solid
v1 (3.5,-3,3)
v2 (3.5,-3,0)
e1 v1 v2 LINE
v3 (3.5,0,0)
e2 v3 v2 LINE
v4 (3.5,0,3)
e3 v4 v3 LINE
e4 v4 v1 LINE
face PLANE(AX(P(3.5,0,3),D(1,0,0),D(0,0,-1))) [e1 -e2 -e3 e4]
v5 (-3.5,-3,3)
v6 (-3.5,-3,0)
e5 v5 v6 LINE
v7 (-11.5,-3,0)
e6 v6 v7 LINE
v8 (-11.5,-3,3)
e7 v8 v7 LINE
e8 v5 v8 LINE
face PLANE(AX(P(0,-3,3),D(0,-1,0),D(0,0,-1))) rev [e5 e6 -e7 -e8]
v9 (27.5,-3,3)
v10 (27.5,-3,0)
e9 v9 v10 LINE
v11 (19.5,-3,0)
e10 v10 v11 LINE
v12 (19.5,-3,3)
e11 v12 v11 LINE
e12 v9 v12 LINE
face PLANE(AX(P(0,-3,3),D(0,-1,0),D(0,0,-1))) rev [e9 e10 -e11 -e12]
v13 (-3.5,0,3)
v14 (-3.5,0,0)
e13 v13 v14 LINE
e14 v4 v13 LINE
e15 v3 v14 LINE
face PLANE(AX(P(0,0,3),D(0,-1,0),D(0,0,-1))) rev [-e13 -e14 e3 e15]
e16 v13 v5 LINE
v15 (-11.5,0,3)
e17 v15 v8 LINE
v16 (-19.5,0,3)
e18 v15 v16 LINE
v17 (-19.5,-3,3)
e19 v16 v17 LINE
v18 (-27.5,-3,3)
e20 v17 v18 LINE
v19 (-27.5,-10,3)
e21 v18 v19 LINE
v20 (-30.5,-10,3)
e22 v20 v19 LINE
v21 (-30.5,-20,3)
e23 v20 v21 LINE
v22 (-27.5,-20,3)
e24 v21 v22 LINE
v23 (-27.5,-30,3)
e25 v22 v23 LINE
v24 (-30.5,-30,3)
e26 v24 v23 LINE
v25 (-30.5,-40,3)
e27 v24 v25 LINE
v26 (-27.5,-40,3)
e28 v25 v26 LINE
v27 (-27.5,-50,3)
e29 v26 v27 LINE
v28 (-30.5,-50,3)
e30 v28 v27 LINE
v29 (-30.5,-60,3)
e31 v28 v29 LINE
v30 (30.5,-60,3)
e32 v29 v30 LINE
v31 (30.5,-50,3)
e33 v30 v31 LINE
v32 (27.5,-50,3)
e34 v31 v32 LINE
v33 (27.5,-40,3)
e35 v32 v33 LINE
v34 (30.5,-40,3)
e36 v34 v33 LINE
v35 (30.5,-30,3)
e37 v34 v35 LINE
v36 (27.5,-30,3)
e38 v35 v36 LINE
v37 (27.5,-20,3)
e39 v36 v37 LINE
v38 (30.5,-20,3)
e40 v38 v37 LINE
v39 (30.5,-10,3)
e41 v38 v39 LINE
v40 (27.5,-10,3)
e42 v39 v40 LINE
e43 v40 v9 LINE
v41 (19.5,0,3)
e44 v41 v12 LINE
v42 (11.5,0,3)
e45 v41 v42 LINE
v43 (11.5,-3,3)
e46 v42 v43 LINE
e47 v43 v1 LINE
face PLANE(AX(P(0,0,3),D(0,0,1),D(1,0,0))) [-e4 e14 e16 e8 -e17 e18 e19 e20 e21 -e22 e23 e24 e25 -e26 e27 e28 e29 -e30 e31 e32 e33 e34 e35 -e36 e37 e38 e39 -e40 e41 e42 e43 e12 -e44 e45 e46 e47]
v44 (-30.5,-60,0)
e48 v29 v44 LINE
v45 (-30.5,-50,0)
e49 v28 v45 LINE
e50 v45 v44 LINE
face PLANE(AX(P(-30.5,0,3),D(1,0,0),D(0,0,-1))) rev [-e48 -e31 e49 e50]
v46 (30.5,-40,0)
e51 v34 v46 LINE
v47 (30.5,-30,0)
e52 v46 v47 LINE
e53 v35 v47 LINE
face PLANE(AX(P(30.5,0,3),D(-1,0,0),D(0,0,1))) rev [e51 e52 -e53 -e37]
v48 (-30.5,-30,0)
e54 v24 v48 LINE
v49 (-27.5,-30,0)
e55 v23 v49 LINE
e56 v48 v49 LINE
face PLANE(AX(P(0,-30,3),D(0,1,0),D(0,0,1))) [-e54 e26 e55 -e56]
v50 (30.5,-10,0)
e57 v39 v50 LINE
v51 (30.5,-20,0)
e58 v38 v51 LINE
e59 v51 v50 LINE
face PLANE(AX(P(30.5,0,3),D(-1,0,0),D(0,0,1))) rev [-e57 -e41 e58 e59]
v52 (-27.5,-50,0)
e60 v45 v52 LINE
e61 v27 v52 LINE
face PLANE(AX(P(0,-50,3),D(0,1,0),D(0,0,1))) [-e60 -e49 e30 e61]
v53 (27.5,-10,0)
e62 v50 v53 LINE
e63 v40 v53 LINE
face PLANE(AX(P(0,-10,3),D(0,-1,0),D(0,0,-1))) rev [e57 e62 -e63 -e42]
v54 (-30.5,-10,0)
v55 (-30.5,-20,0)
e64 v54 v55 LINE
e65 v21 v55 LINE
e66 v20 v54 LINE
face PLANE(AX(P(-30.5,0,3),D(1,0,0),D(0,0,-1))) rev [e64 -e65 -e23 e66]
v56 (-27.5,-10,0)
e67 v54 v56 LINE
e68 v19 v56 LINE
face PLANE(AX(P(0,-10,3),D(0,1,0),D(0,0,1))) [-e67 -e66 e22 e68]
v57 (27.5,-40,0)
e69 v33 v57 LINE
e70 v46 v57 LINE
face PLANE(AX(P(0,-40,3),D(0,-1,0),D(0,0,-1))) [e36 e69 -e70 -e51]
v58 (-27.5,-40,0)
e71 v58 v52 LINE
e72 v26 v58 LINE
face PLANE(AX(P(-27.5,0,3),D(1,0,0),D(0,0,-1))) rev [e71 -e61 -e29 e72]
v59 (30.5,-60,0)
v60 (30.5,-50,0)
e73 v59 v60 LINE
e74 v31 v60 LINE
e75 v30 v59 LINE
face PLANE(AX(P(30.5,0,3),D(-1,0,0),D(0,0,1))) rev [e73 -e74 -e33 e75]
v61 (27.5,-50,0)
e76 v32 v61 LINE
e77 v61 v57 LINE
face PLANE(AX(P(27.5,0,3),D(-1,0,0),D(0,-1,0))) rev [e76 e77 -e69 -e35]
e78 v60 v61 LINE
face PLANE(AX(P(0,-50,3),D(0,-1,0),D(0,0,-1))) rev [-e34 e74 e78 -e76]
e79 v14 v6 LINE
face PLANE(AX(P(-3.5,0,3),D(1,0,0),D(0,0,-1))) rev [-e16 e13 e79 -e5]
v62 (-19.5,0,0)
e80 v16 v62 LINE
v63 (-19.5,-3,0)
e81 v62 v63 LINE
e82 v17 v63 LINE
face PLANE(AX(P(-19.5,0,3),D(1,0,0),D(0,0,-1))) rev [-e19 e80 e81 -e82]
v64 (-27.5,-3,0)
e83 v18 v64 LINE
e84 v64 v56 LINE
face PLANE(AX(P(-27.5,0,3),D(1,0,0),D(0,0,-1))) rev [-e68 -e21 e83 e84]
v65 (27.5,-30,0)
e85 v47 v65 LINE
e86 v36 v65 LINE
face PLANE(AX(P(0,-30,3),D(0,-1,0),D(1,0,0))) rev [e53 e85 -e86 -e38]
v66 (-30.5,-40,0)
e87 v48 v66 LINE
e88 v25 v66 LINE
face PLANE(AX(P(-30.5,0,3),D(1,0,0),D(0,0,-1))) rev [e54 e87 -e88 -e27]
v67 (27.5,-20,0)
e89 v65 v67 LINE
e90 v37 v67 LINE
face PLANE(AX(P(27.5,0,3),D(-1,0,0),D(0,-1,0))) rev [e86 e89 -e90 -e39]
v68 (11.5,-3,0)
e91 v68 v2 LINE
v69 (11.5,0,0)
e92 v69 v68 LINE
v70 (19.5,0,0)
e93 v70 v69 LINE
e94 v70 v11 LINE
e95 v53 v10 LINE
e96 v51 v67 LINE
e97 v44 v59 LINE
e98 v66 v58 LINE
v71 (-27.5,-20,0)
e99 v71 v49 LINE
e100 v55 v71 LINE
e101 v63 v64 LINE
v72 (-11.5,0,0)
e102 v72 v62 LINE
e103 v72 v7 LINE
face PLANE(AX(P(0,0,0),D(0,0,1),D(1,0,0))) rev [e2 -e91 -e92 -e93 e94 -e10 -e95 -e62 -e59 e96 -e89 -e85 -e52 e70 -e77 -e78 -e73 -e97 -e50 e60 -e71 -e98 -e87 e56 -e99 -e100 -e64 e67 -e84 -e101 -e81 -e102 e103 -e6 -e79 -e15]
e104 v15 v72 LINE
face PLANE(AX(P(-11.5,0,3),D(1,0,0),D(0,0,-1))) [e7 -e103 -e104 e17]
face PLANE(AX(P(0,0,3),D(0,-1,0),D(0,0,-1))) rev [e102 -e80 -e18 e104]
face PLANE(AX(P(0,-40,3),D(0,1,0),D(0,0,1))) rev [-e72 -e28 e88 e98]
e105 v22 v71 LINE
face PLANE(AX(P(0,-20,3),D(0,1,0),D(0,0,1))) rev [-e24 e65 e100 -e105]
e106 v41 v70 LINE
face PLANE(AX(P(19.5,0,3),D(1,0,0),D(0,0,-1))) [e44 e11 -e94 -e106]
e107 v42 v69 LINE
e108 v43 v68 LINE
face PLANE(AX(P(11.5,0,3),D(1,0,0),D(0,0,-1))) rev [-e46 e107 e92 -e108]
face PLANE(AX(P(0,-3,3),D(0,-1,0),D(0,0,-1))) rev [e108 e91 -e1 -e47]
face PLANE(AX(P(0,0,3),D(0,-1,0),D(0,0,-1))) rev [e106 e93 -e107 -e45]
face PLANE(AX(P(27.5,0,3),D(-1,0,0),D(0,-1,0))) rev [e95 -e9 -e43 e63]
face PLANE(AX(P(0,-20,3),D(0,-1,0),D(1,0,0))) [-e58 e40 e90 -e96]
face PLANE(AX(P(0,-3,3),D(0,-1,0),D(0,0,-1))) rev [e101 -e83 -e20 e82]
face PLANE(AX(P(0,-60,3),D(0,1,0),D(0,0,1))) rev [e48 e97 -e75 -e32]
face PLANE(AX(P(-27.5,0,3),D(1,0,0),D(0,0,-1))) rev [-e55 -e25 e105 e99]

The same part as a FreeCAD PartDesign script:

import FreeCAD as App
import Part
import Sketcher

V = App.Vector


def add_polygon(sketch, points):
    """Adds a closed chain of lines whose ends are joined by coincident constraints."""
    first, n = sketch.GeometryCount, len(points)
    for a, b in zip(points, points[1:] + points[:1]):
        sketch.addGeometry(Part.LineSegment(App.Vector(*a, 0), App.Vector(*b, 0)), False)
    for i in range(n):
        sketch.addConstraint(Sketcher.Constraint("Coincident", first + i, 2, first + (i + 1) % n, 1))

doc = App.newDocument("Part")
body = doc.addObject("PartDesign::Body", "Body")

# Sketch on XY plane
sketch1 = body.newObject("Sketcher::SketchObject", "Sketch")
sketch1.AttachmentSupport = (doc.getObject("XY_Plane"), [""])
sketch1.MapMode = "FlatFace"
add_polygon(sketch1, [(-30.5, -10), (-30.5, -20), (-27.5, -20), (-27.5, -30), (-30.5, -30), (-30.5, -40), (-27.5, -40), (-27.5, -50), (-30.5, -50), (-30.5, -60), (30.5, -60), (30.5, -50), (27.5, -50), (27.5, -40), (30.5, -40), (30.5, -30), (27.5, -30), (27.5, -20), (30.5, -20), (30.5, -10), (27.5, -10), (27.5, -3), (19.5, -3), (19.5, 0), (11.5, 0), (11.5, -3), (3.5, -3), (3.5, 0), (-3.5, 0), (-3.5, -3), (-11.5, -3), (-11.5, 0), (-19.5, 0), (-19.5, -3), (-27.5, -3), (-27.5, -10)])  # lines 0-35
sketch1.addConstraint(Sketcher.Constraint("Vertical", 0))
sketch1.addConstraint(Sketcher.Constraint("Horizontal", 1))
sketch1.addConstraint(Sketcher.Constraint("Vertical", 2))
sketch1.addConstraint(Sketcher.Constraint("Horizontal", 3))
sketch1.addConstraint(Sketcher.Constraint("Vertical", 4))
sketch1.addConstraint(Sketcher.Constraint("Horizontal", 5))
sketch1.addConstraint(Sketcher.Constraint("Vertical", 6))
sketch1.addConstraint(Sketcher.Constraint("Horizontal", 7))
sketch1.addConstraint(Sketcher.Constraint("Vertical", 8))
sketch1.addConstraint(Sketcher.Constraint("Horizontal", 9))
sketch1.addConstraint(Sketcher.Constraint("Vertical", 10))
sketch1.addConstraint(Sketcher.Constraint("Horizontal", 11))
sketch1.addConstraint(Sketcher.Constraint("Vertical", 12))
sketch1.addConstraint(Sketcher.Constraint("Horizontal", 13))
sketch1.addConstraint(Sketcher.Constraint("Vertical", 14))
sketch1.addConstraint(Sketcher.Constraint("Horizontal", 15))
sketch1.addConstraint(Sketcher.Constraint("Vertical", 16))
sketch1.addConstraint(Sketcher.Constraint("Horizontal", 17))
sketch1.addConstraint(Sketcher.Constraint("Vertical", 18))
sketch1.addConstraint(Sketcher.Constraint("Horizontal", 19))
sketch1.addConstraint(Sketcher.Constraint("Vertical", 20))
sketch1.addConstraint(Sketcher.Constraint("Horizontal", 21))
sketch1.addConstraint(Sketcher.Constraint("Vertical", 22))
sketch1.addConstraint(Sketcher.Constraint("Horizontal", 23))
sketch1.addConstraint(Sketcher.Constraint("Vertical", 24))
sketch1.addConstraint(Sketcher.Constraint("Horizontal", 25))
sketch1.addConstraint(Sketcher.Constraint("Vertical", 26))
sketch1.addConstraint(Sketcher.Constraint("Horizontal", 27))
sketch1.addConstraint(Sketcher.Constraint("Vertical", 28))
sketch1.addConstraint(Sketcher.Constraint("Horizontal", 29))
sketch1.addConstraint(Sketcher.Constraint("Vertical", 30))
sketch1.addConstraint(Sketcher.Constraint("Horizontal", 31))
sketch1.addConstraint(Sketcher.Constraint("Vertical", 32))
sketch1.addConstraint(Sketcher.Constraint("Horizontal", 33))
sketch1.addConstraint(Sketcher.Constraint("Vertical", 34))
sketch1.addConstraint(Sketcher.Constraint("Horizontal", 35))
sketch1.addConstraint(Sketcher.Constraint("Symmetric", 26, 2, 27, 2, -1, 1))
sketch1.addConstraint(Sketcher.Constraint("Symmetric", 23, 2, 30, 2, -1, 1))
sketch1.addConstraint(Sketcher.Constraint("Symmetric", 7, 2, 10, 2, -2))
sketch1.addConstraint(Sketcher.Constraint("Symmetric", 5, 2, 12, 2, -2))
sketch1.addConstraint(Sketcher.Constraint("Symmetric", 3, 2, 14, 2, -2))
sketch1.addConstraint(Sketcher.Constraint("Symmetric", 1, 2, 16, 2, -2))
sketch1.addConstraint(Sketcher.Constraint("Symmetric", 22, 2, 31, 2, -2))
sketch1.addConstraint(Sketcher.Constraint("Symmetric", 20, 2, 33, 2, -2))
sketch1.addConstraint(Sketcher.Constraint("Symmetric", 18, 2, 35, 2, -2))
sketch1.addConstraint(Sketcher.Constraint("Horizontal", 21, 2, 24, 2))
sketch1.addConstraint(Sketcher.Constraint("Horizontal", 25, 2, 28, 2))
sketch1.addConstraint(Sketcher.Constraint("Vertical", 0, 2, 3, 2))
sketch1.addConstraint(Sketcher.Constraint("Vertical", 2, 2, 5, 2))
sketch1.addConstraint(Sketcher.Constraint("Vertical", 4, 2, 7, 2))
sketch1.addConstraint(Sketcher.Constraint("Vertical", 16, 2, 19, 2))
sketch1.addConstraint(Sketcher.Constraint("Equal", 21, 23))
sketch1.addConstraint(Sketcher.Constraint("Equal", 23, 25))
sketch1.addConstraint(Sketcher.Constraint("Equal", 0, 2))
sketch1.addConstraint(Sketcher.Constraint("Equal", 2, 4))
sketch1.addConstraint(Sketcher.Constraint("Equal", 4, 6))
sketch1.addConstraint(Sketcher.Constraint("Equal", 6, 8))
sketch1.addConstraint(Sketcher.Constraint("Equal", 27, 20))
sketch1.addConstraint(Sketcher.Constraint("Equal", 35, 22))
sketch1.addConstraint(Sketcher.Constraint("DistanceX", 1, 1, 1, 2, 3.0))
sketch1.addConstraint(Sketcher.Constraint("DistanceX", 9, 1, 9, 2, 61.0))
sketch1.addConstraint(Sketcher.Constraint("DistanceX", 21, 2, 21, 1, 8.0))
sketch1.addConstraint(Sketcher.Constraint("DistanceY", 0, 2, 0, 1, 10.0))
pad1 = body.newObject("PartDesign::Pad", "Pad")
pad1.Profile = sketch1
pad1.Length = 3

doc.recompute()
